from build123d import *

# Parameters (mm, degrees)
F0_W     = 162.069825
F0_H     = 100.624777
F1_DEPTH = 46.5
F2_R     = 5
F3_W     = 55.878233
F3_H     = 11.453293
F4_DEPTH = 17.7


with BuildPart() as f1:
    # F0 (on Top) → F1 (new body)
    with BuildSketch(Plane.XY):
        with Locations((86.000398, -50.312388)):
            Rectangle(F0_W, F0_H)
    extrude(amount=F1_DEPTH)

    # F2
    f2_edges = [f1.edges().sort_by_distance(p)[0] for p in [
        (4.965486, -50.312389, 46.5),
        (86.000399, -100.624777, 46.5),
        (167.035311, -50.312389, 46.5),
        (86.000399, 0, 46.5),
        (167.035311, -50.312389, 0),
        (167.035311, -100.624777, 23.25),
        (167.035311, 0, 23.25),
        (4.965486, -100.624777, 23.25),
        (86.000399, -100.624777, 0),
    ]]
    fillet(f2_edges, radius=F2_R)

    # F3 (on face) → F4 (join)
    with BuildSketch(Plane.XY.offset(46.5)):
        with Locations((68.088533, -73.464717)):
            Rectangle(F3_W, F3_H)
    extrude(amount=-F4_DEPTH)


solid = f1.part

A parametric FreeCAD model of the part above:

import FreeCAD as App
import Part
import Sketcher


def edges_at(feature, points):
    """Names of the edges that pass closest to the given points."""
    edges = feature.Shape.Edges
    near = lambda p: min(range(len(edges)), key=lambda i: edges[i].distToShape(Part.Vertex(*p))[0])
    return sorted({f"Edge{near(p) + 1}" for p in points})

doc = App.newDocument("Part")
body = doc.addObject("PartDesign::Body", "Body")

# Sketch on XY plane
sketch1 = doc.addObject("Sketcher::SketchObject", "Sketch")
body.addObject(sketch1)
sketch1.AttachmentSupport = (doc.XY_Plane, [""])
sketch1.MapMode = "FlatFace"
sketch1.addGeometry(Part.LineSegment(App.Vector(5, 0, 0), App.Vector(5, -101, 0)), False)
sketch1.addGeometry(Part.LineSegment(App.Vector(5, -101, 0), App.Vector(167, -101, 0)), False)
sketch1.addGeometry(Part.LineSegment(App.Vector(167, -101, 0), App.Vector(167, 0, 0)), False)
sketch1.addGeometry(Part.LineSegment(App.Vector(167, 0, 0), App.Vector(5, 0, 0)), False)
sketch1.addConstraint(Sketcher.Constraint("Coincident", 0, 2, 1, 1))
sketch1.addConstraint(Sketcher.Constraint("Coincident", 1, 2, 2, 1))
sketch1.addConstraint(Sketcher.Constraint("Coincident", 2, 2, 3, 1))
sketch1.addConstraint(Sketcher.Constraint("Coincident", 3, 2, 0, 1))
sketch1.addConstraint(Sketcher.Constraint("Vertical", 0))
sketch1.addConstraint(Sketcher.Constraint("Horizontal", 1))
sketch1.addConstraint(Sketcher.Constraint("Vertical", 2))
sketch1.addConstraint(Sketcher.Constraint("Horizontal", 3))
sketch1.addConstraint(Sketcher.Constraint("PointOnObject", 2, 2, -1))
sketch1.addConstraint(Sketcher.Constraint("DistanceX", 1, 1, 1, 2, 162.069825))
sketch1.addConstraint(Sketcher.Constraint("DistanceY", 0, 2, 0, 1, 100.624777))
sketch1.addConstraint(Sketcher.Constraint("DistanceX", -1, 1, 1, 2, 167.035311))
pad1 = doc.addObject("PartDesign::Pad", "Pad")
body.addObject(pad1)
pad1.Profile = sketch1
pad1.Length = 46.5
doc.recompute()

fillet = doc.addObject("PartDesign::Fillet", "Fillet")
body.addObject(fillet)
fillet.Base = (pad1, edges_at(pad1, [
    (4.965, -50.312, 46.5),
    (86, -100.625, 46.5),
    (167.035, -50.312, 46.5),
    (86, 0, 46.5),
    (167.035, -50.312, 0),
    (167.035, -100.625, 23.25),
    (167.035, 0, 23.25),
    (4.965, -100.625, 23.25),
    (86, -100.625, 0),
]))
fillet.Radius = 5

# Sketch on XY plane
sketch2 = doc.addObject("Sketcher::SketchObject", "Sketch001")
body.addObject(sketch2)
sketch2.AttachmentSupport = (doc.XY_Plane, [""])
sketch2.MapMode = "FlatFace"
sketch2.AttachmentOffset = App.Placement(App.Vector(0, 0, 46.5), App.Rotation())
sketch2.addGeometry(Part.LineSegment(App.Vector(40, -68, 0), App.Vector(40, -79, 0)), False)
sketch2.addGeometry(Part.LineSegment(App.Vector(40, -79, 0), App.Vector(96, -79, 0)), False)
sketch2.addGeometry(Part.LineSegment(App.Vector(96, -79, 0), App.Vector(96, -68, 0)), False)
sketch2.addGeometry(Part.LineSegment(App.Vector(96, -68, 0), App.Vector(40, -68, 0)), False)
sketch2.addConstraint(Sketcher.Constraint("Coincident", 0, 2, 1, 1))
sketch2.addConstraint(Sketcher.Constraint("Coincident", 1, 2, 2, 1))
sketch2.addConstraint(Sketcher.Constraint("Coincident", 2, 2, 3, 1))
sketch2.addConstraint(Sketcher.Constraint("Coincident", 3, 2, 0, 1))
sketch2.addConstraint(Sketcher.Constraint("Vertical", 0))
sketch2.addConstraint(Sketcher.Constraint("Horizontal", 1))
sketch2.addConstraint(Sketcher.Constraint("Vertical", 2))
sketch2.addConstraint(Sketcher.Constraint("Horizontal", 3))
sketch2.addConstraint(Sketcher.Constraint("DistanceX", 1, 1, 1, 2, 55.878233))
sketch2.addConstraint(Sketcher.Constraint("DistanceY", 0, 2, 0, 1, 11.453293))
sketch2.addConstraint(Sketcher.Constraint("DistanceX", -1, 1, 1, 2, 96.027649))
sketch2.addConstraint(Sketcher.Constraint("DistanceY", 2, 2, -1, 1, 67.738071))
pad2 = doc.addObject("PartDesign::Pad", "Pad001")
body.addObject(pad2)
pad2.Profile = sketch2
pad2.Length = 17.7
pad2.Reversed = True

doc.recompute()
